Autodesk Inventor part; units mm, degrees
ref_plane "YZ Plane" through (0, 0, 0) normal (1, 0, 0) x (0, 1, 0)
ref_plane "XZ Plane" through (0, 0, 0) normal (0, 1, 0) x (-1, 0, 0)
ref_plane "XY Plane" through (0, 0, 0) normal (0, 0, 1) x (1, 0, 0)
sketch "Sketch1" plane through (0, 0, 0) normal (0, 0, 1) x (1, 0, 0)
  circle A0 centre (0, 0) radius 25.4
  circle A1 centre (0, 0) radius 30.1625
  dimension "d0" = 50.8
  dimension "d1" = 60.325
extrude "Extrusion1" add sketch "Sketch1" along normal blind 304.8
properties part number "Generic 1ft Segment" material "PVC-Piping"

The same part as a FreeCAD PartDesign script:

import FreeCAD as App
import Part
import Sketcher
from FreeCAD import Vector
Q = App.Units.Quantity

doc = App.newDocument("Part")
params = doc.addObject("Spreadsheet::Sheet", "Params")
for row, (alias, value) in enumerate([
    ("sketch1_diameter", "2 in"),
    ("sketch1_diameter2", "2.375 in"),
    ("pad1_length", "12 in"),
], start=1):
    params.set(f"A{row}", alias)
    params.set(f"B{row}", "=" + value)
    params.setAlias(f"B{row}", alias)

body = doc.addObject("PartDesign::Body", "Body")

# Sketch on XY plane
sketch1 = body.newObject("Sketcher::SketchObject", "Sketch")
sketch1.AttachmentSupport = (doc.getObject("XY_Plane"), [""])
sketch1.MapMode = "FlatFace"
sketch1.addGeometry([
    Part.Circle(Vector(0, 0, 0), Vector(0, 0, 1), 30),
    Part.Circle(Vector(0, 0, 0), Vector(0, 0, 1), 25),
], False)
sketch1.addConstraint([
    Sketcher.Constraint("Coincident", 0, 3, -1, 1),
    Sketcher.Constraint("Coincident", 1, 3, -1, 1),
    Sketcher.Constraint("Diameter", 1, Q("2 in")),
    Sketcher.Constraint("Diameter", 0, Q("2.375 in")),
])
sketch1.setExpression("Constraints[2]", "Params.sketch1_diameter")
sketch1.setExpression("Constraints[3]", "Params.sketch1_diameter2")
pad1 = body.newObject("PartDesign::Pad", "Pad")
pad1.Profile = sketch1
pad1.setExpression("Length", "Params.pad1_length")

doc.recompute()
